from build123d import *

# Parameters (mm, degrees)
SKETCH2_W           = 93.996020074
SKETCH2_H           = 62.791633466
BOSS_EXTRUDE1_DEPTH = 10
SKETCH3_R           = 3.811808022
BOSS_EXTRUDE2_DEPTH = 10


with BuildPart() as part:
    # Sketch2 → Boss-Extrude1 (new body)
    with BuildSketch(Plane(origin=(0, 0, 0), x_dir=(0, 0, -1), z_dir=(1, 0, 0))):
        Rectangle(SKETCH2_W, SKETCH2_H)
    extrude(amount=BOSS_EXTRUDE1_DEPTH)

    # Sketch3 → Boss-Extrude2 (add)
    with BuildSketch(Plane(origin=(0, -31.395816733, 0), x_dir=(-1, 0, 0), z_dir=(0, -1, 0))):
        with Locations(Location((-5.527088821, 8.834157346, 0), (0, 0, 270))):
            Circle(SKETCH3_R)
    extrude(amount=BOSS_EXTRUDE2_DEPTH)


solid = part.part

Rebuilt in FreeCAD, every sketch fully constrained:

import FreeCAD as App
import Part
import Sketcher

V = App.Vector
Q = App.Units.Quantity

doc = App.newDocument("Part")
body = doc.addObject("PartDesign::Body", "Body")

sketch1 = doc.addObject("Sketcher::SketchObject", "Sketch")
body.addObject(sketch1)
sketch1.AttachmentSupport = (doc.YZ_Plane, [""])
sketch1.MapMode = "FlatFace"
sketch1.addGeometry([
    Part.LineSegment(V(31.395817, 46.99801, 0), V(-31.395817, 46.99801, 0)),
    Part.LineSegment(V(-31.395817, 46.99801, 0), V(-31.395817, -46.99801, 0)),
    Part.LineSegment(V(-31.395817, -46.99801, 0), V(31.395817, -46.99801, 0)),
    Part.LineSegment(V(31.395817, -46.99801, 0), V(31.395817, 46.99801, 0)),
], False)
sketch1.addConstraint([
    Sketcher.Constraint("Coincident", 0, 2, 1, 1),
    Sketcher.Constraint("Coincident", 1, 2, 2, 1),
    Sketcher.Constraint("Coincident", 2, 2, 3, 1),
    Sketcher.Constraint("Coincident", 3, 2, 0, 1),
    Sketcher.Constraint("Horizontal", 0),
    Sketcher.Constraint("Vertical", 1),
    Sketcher.Constraint("Horizontal", 2),
    Sketcher.Constraint("Vertical", 3),
    Sketcher.Constraint("Symmetric", 0, 2, 2, 2, -1, 1),
    Sketcher.Constraint("DistanceY", 1, 2, 1, 1, Q("93.99602 mm")),
    Sketcher.Constraint("DistanceX", 0, 2, 0, 1, Q("62.791633 mm")),
])
pad1 = doc.addObject("PartDesign::Pad", "Pad")
body.addObject(pad1)
pad1.Profile = sketch1
pad1.Length = 10

sketch2 = doc.addObject("Sketcher::SketchObject", "Sketch001")
body.addObject(sketch2)
sketch2.AttachmentSupport = (doc.XZ_Plane, [""])
sketch2.MapMode = "FlatFace"
sketch2.AttachmentOffset = App.Placement(V(0, 0, 31.395817), App.Rotation())
sketch2.addGeometry(Part.Circle(V(5.527089, -8.834157, 0), V(0, 0, 1), 3.811808), False)
sketch2.addConstraint([
    Sketcher.Constraint("Diameter", 0, Q("7.623616 mm")),
    Sketcher.Constraint("DistanceX", -1, 1, 0, 3, Q("5.527089 mm")),
    Sketcher.Constraint("DistanceY", 0, 3, -1, 1, Q("8.834157 mm")),
])
pad2 = doc.addObject("PartDesign::Pad", "Pad001")
body.addObject(pad2)
pad2.Profile = sketch2
pad2.Length = 10

doc.recompute()
